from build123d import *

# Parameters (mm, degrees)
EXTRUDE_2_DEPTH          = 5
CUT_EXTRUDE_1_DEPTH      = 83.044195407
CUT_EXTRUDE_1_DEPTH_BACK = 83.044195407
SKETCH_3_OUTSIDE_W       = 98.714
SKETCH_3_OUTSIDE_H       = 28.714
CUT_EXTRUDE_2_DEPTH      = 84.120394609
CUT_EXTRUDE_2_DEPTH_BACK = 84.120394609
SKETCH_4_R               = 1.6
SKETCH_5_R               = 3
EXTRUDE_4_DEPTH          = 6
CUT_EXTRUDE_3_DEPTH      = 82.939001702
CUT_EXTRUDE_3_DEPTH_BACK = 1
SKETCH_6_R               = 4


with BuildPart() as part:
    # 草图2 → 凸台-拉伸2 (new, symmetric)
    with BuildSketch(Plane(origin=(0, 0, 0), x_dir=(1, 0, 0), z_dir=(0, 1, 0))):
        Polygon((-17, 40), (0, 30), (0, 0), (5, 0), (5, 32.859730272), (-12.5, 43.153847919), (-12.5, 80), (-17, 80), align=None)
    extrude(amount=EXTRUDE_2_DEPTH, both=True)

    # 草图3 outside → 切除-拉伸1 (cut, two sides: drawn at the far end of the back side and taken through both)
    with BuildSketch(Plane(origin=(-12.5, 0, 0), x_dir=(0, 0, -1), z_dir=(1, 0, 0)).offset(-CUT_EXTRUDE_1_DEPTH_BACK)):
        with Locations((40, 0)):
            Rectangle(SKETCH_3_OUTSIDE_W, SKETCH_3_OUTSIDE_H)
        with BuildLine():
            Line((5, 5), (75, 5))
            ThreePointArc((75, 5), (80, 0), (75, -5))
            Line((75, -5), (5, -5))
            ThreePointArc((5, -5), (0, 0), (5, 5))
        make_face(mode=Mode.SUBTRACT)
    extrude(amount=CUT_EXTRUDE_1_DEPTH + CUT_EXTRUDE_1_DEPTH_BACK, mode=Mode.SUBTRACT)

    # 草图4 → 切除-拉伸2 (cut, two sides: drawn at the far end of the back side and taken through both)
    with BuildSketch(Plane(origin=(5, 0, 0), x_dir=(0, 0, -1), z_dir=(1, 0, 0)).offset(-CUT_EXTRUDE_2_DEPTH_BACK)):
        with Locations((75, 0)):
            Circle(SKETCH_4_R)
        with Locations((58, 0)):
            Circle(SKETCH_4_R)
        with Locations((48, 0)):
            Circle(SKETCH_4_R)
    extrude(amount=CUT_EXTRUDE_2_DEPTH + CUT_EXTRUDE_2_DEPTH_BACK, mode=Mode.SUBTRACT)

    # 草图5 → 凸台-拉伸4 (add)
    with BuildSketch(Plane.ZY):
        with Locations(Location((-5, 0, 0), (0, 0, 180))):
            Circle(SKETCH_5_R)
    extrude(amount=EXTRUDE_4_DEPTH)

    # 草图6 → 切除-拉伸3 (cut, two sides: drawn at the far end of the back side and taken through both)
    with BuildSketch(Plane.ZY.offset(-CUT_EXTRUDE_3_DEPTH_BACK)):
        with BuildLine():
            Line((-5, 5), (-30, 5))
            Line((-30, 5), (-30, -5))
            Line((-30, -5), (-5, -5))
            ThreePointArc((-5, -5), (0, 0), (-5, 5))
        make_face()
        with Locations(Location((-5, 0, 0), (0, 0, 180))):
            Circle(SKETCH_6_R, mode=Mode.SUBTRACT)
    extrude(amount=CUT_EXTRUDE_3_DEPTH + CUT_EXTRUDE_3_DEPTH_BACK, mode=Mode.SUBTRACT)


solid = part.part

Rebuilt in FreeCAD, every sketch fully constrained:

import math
import FreeCAD as App
import Part
import Sketcher

V = App.Vector

doc = App.newDocument("Part")
params = doc.addObject("Spreadsheet::Sheet", "Params")
for row, (alias, value) in enumerate([
    ("sketch1_width", "5 mm"),
    ("sketch1_height", "30 mm"),
    ("sketch1_height2", "40 mm"),
    ("sketch1_width2", "4.5 mm"),
    ("pad1_length", "10 mm"),
    ("sketch2_radius", "5 mm"),
    ("sketch2_height", "70 mm"),
    ("sketch3_diameter", "3.2 mm"),
    ("sketch4_diameter", "6 mm"),
    ("pad2_length", "6 mm"),
    ("sketch5_diameter", "8 mm"),
    ("sketch5_radius", "5 mm"),
    ("sketch5_height", "25 mm"),
    ("pocket3_length", "82.939002 mm"),
    ("pocket3_length2", "1 mm"),
], start=1):
    params.set(f"A{row}", alias)
    params.set(f"B{row}", "=" + value)
    params.setAlias(f"B{row}", alias)

body = doc.addObject("PartDesign::Body", "Body")

# Sketch on XZ plane
sketch1 = body.newObject("Sketcher::SketchObject", "Sketch")
sketch1.AttachmentSupport = (doc.getObject("XZ_Plane"), [""])
sketch1.MapMode = "FlatFace"
sketch1.addGeometry(Part.LineSegment(V(-17, -40, 0), V(0, -30, 0)), False)
sketch1.addGeometry(Part.LineSegment(V(0, -30, 0), V(0, 0, 0)), False)
sketch1.addGeometry(Part.LineSegment(V(0, 0, 0), V(5, 0, 0)), False)
sketch1.addGeometry(Part.LineSegment(V(5, 0, 0), V(5, -32.85973, 0)), False)
sketch1.addGeometry(Part.LineSegment(V(5, -32.85973, 0), V(-12.5, -43.153848, 0)), False)
sketch1.addGeometry(Part.LineSegment(V(-12.5, -43.153848, 0), V(-12.5, -80, 0)), False)
sketch1.addGeometry(Part.LineSegment(V(-12.5, -80, 0), V(-17, -80, 0)), False)
sketch1.addGeometry(Part.LineSegment(V(-17, -80, 0), V(-17, -40, 0)), False)
sketch1.addConstraint(Sketcher.Constraint("Coincident", 0, 2, 1, 1))
sketch1.addConstraint(Sketcher.Constraint("Coincident", 1, 2, 2, 1))
sketch1.addConstraint(Sketcher.Constraint("Coincident", 2, 2, 3, 1))
sketch1.addConstraint(Sketcher.Constraint("Coincident", 3, 2, 4, 1))
sketch1.addConstraint(Sketcher.Constraint("Coincident", 4, 2, 5, 1))
sketch1.addConstraint(Sketcher.Constraint("Coincident", 5, 2, 6, 1))
sketch1.addConstraint(Sketcher.Constraint("Coincident", 6, 2, 7, 1))
sketch1.addConstraint(Sketcher.Constraint("Coincident", 7, 2, 0, 1))
sketch1.addConstraint(Sketcher.Constraint("Vertical", 1))
sketch1.addConstraint(Sketcher.Constraint("Horizontal", 2))
sketch1.addConstraint(Sketcher.Constraint("Vertical", 3))
sketch1.addConstraint(Sketcher.Constraint("Vertical", 5))
sketch1.addConstraint(Sketcher.Constraint("Horizontal", 6))
sketch1.addConstraint(Sketcher.Constraint("Vertical", 7))
sketch1.addConstraint(Sketcher.Constraint("Coincident", 1, 2, -1, 1))
sketch1.addConstraint(Sketcher.Constraint("Parallel", 0, 4))
sketch1.addConstraint(Sketcher.Constraint("DistanceX", 2, 1, 2, 2, 5.0))
sketch1.addConstraint(Sketcher.Constraint("DistanceY", 1, 1, 1, 2, 30.0))
sketch1.addConstraint(Sketcher.Constraint("DistanceY", 7, 1, 7, 2, 40.0))
sketch1.addConstraint(Sketcher.Constraint("DistanceX", 6, 2, 6, 1, 4.5))
sketch1.addConstraint(Sketcher.Constraint("DistanceY", 5, 2, -1, 1, 80.0))
sketch1.addConstraint(Sketcher.Constraint("DistanceX", 6, 2, -1, 1, 17.0))
sketch1.addConstraint(Sketcher.Constraint("DistanceY", 3, 2, 3, 1, 32.85973))
sketch1.setExpression("Constraints[16]", "Params.sketch1_width")
sketch1.setExpression("Constraints[17]", "Params.sketch1_height")
sketch1.setExpression("Constraints[18]", "Params.sketch1_height2")
sketch1.setExpression("Constraints[19]", "Params.sketch1_width2")
pad1 = body.newObject("PartDesign::Pad", "Pad")
pad1.Profile = sketch1
pad1.setExpression("Length", "Params.pad1_length")
pad1.Midplane = True

# Sketch on YZ plane
sketch2 = body.newObject("Sketcher::SketchObject", "Sketch001")
sketch2.AttachmentSupport = (doc.getObject("YZ_Plane"), [""])
sketch2.MapMode = "FlatFace"
sketch2.AttachmentOffset = App.Placement(V(0, 0, -12.5), App.Rotation())
sketch2.addGeometry(Part.LineSegment(V(14.357, 9.357, 0), V(-14.357, 9.357, 0)), False)
sketch2.addGeometry(Part.LineSegment(V(-14.357, 9.357, 0), V(-14.357, -89.357, 0)), False)
sketch2.addGeometry(Part.LineSegment(V(-14.357, -89.357, 0), V(14.357, -89.357, 0)), False)
sketch2.addGeometry(Part.LineSegment(V(14.357, -89.357, 0), V(14.357, 9.357, 0)), False)
sketch2.addGeometry(Part.ArcOfCircle(Part.Circle(V(0, -5, 0), V(0, 0, 1), 5), math.radians(0), math.radians(180)), False)
sketch2.addGeometry(Part.LineSegment(V(5, -5, 0), V(5, -75, 0)), False)
sketch2.addGeometry(Part.ArcOfCircle(Part.Circle(V(0, -75, 0), V(0, 0, 1), 5), math.radians(180), math.radians(360)), False)
sketch2.addGeometry(Part.LineSegment(V(-5, -75, 0), V(-5, -5, 0)), False)
sketch2.addConstraint(Sketcher.Constraint("Coincident", 0, 2, 1, 1))
sketch2.addConstraint(Sketcher.Constraint("Coincident", 1, 2, 2, 1))
sketch2.addConstraint(Sketcher.Constraint("Coincident", 2, 2, 3, 1))
sketch2.addConstraint(Sketcher.Constraint("Coincident", 3, 2, 0, 1))
sketch2.addConstraint(Sketcher.Constraint("Tangent", 4, 1, 5, 1))
sketch2.addConstraint(Sketcher.Constraint("Tangent", 5, 2, 6, 2))
sketch2.addConstraint(Sketcher.Constraint("Tangent", 6, 1, 7, 1))
sketch2.addConstraint(Sketcher.Constraint("Tangent", 7, 2, 4, 2))
sketch2.addConstraint(Sketcher.Constraint("Horizontal", 0))
sketch2.addConstraint(Sketcher.Constraint("Vertical", 1))
sketch2.addConstraint(Sketcher.Constraint("Horizontal", 2))
sketch2.addConstraint(Sketcher.Constraint("Vertical", 3))
sketch2.addConstraint(Sketcher.Constraint("Vertical", 5))
sketch2.addConstraint(Sketcher.Constraint("Vertical", 7))
sketch2.addConstraint(Sketcher.Constraint("PointOnObject", 4, 3, -2))
sketch2.addConstraint(Sketcher.Constraint("Radius", 4, 5.0))
sketch2.addConstraint(Sketcher.Constraint("DistanceY", 5, 2, 5, 1, 70.0))
sketch2.addConstraint(Sketcher.Constraint("DistanceY", 4, 3, -1, 1, 5.0))
sketch2.addConstraint(Sketcher.Constraint("DistanceX", 0, 2, 0, 1, 28.714))
sketch2.addConstraint(Sketcher.Constraint("DistanceY", 1, 2, 1, 1, 98.714))
sketch2.addConstraint(Sketcher.Constraint("DistanceX", 0, 2, -1, 1, 14.357))
sketch2.addConstraint(Sketcher.Constraint("DistanceY", -1, 1, 0, 2, 9.357))
sketch2.setExpression("Constraints[15]", "Params.sketch2_radius")
sketch2.setExpression("Constraints[16]", "Params.sketch2_height")
pocket1 = body.newObject("PartDesign::Pocket", "Pocket")
pocket1.Profile = sketch2
pocket1.Type = "ThroughAll"
pocket1.Midplane = True

# Sketch on YZ plane
sketch3 = body.newObject("Sketcher::SketchObject", "Sketch002")
sketch3.AttachmentSupport = (doc.getObject("YZ_Plane"), [""])
sketch3.MapMode = "FlatFace"
sketch3.AttachmentOffset = App.Placement(V(0, 0, 5), App.Rotation())
sketch3.addGeometry(Part.Circle(V(0, -75, 0), V(0, 0, 1), 1.6), False)
sketch3.addGeometry(Part.Circle(V(0, -58, 0), V(0, 0, 1), 1.6), False)
sketch3.addGeometry(Part.Circle(V(0, -48, 0), V(0, 0, 1), 1.6), False)
sketch3.addConstraint(Sketcher.Constraint("Equal", 0, 1))
sketch3.addConstraint(Sketcher.Constraint("Equal", 1, 2))
sketch3.addConstraint(Sketcher.Constraint("PointOnObject", 0, 3, -2))
sketch3.addConstraint(Sketcher.Constraint("PointOnObject", 1, 3, -2))
sketch3.addConstraint(Sketcher.Constraint("PointOnObject", 2, 3, -2))
sketch3.addConstraint(Sketcher.Constraint("Diameter", 0, 3.2))
sketch3.addConstraint(Sketcher.Constraint("DistanceY", 0, 3, -1, 1, 75.0))
sketch3.addConstraint(Sketcher.Constraint("DistanceY", 1, 3, -1, 1, 58.0))
sketch3.addConstraint(Sketcher.Constraint("DistanceY", 2, 3, -1, 1, 48.0))
sketch3.setExpression("Constraints[5]", "Params.sketch3_diameter")
pocket2 = body.newObject("PartDesign::Pocket", "Pocket001")
pocket2.Profile = sketch3
pocket2.Type = "ThroughAll"
pocket2.Midplane = True

# Sketch on YZ plane
sketch4 = body.newObject("Sketcher::SketchObject", "Sketch003")
sketch4.AttachmentSupport = (doc.getObject("YZ_Plane"), [""])
sketch4.MapMode = "FlatFace"
sketch4.addGeometry(Part.Circle(V(0, -5, 0), V(0, 0, 1), 3), False)
sketch4.addConstraint(Sketcher.Constraint("PointOnObject", 0, 3, -2))
sketch4.addConstraint(Sketcher.Constraint("Diameter", 0, 6.0))
sketch4.addConstraint(Sketcher.Constraint("DistanceY", 0, 3, -1, 1, 5.0))
sketch4.setExpression("Constraints[1]", "Params.sketch4_diameter")
pad2 = body.newObject("PartDesign::Pad", "Pad001")
pad2.Profile = sketch4
pad2.setExpression("Length", "Params.pad2_length")
pad2.Reversed = True

# Sketch on YZ plane
sketch5 = body.newObject("Sketcher::SketchObject", "Sketch004")
sketch5.AttachmentSupport = (doc.getObject("YZ_Plane"), [""])
sketch5.MapMode = "FlatFace"
sketch5.addGeometry(Part.LineSegment(V(5, -5, 0), V(5, -30, 0)), False)
sketch5.addGeometry(Part.LineSegment(V(5, -30, 0), V(-5, -30, 0)), False)
sketch5.addGeometry(Part.LineSegment(V(-5, -30, 0), V(-5, -5, 0)), False)
sketch5.addGeometry(Part.ArcOfCircle(Part.Circle(V(0, -5, 0), V(0, 0, 1), 5), math.radians(0), math.radians(180)), False)
sketch5.addGeometry(Part.Circle(V(0, -5, 0), V(0, 0, 1), 4), False)
sketch5.addConstraint(Sketcher.Constraint("Coincident", 0, 2, 1, 1))
sketch5.addConstraint(Sketcher.Constraint("Coincident", 1, 2, 2, 1))
sketch5.addConstraint(Sketcher.Constraint("Tangent", 2, 2, 3, 2))
sketch5.addConstraint(Sketcher.Constraint("Tangent", 3, 1, 0, 1))
sketch5.addConstraint(Sketcher.Constraint("Vertical", 0))
sketch5.addConstraint(Sketcher.Constraint("Horizontal", 1))
sketch5.addConstraint(Sketcher.Constraint("Vertical", 2))
sketch5.addConstraint(Sketcher.Constraint("Coincident", 4, 3, 3, 3))
sketch5.addConstraint(Sketcher.Constraint("PointOnObject", 3, 3, -2))
sketch5.addConstraint(Sketcher.Constraint("Diameter", 4, 8.0))
sketch5.addConstraint(Sketcher.Constraint("Radius", 3, 5.0))
sketch5.addConstraint(Sketcher.Constraint("DistanceY", 0, 2, 0, 1, 25.0))
sketch5.addConstraint(Sketcher.Constraint("DistanceY", 3, 3, -1, 1, 5.0))
sketch5.setExpression("Constraints[9]", "Params.sketch5_diameter")
sketch5.setExpression("Constraints[10]", "Params.sketch5_radius")
sketch5.setExpression("Constraints[11]", "Params.sketch5_height")
pocket3 = body.newObject("PartDesign::Pocket", "Pocket002")
pocket3.Profile = sketch5
pocket3.Type = "TwoLengths"
pocket3.setExpression("Length", "Params.pocket3_length")
pocket3.setExpression("Length2", "Params.pocket3_length2")

doc.recompute()
